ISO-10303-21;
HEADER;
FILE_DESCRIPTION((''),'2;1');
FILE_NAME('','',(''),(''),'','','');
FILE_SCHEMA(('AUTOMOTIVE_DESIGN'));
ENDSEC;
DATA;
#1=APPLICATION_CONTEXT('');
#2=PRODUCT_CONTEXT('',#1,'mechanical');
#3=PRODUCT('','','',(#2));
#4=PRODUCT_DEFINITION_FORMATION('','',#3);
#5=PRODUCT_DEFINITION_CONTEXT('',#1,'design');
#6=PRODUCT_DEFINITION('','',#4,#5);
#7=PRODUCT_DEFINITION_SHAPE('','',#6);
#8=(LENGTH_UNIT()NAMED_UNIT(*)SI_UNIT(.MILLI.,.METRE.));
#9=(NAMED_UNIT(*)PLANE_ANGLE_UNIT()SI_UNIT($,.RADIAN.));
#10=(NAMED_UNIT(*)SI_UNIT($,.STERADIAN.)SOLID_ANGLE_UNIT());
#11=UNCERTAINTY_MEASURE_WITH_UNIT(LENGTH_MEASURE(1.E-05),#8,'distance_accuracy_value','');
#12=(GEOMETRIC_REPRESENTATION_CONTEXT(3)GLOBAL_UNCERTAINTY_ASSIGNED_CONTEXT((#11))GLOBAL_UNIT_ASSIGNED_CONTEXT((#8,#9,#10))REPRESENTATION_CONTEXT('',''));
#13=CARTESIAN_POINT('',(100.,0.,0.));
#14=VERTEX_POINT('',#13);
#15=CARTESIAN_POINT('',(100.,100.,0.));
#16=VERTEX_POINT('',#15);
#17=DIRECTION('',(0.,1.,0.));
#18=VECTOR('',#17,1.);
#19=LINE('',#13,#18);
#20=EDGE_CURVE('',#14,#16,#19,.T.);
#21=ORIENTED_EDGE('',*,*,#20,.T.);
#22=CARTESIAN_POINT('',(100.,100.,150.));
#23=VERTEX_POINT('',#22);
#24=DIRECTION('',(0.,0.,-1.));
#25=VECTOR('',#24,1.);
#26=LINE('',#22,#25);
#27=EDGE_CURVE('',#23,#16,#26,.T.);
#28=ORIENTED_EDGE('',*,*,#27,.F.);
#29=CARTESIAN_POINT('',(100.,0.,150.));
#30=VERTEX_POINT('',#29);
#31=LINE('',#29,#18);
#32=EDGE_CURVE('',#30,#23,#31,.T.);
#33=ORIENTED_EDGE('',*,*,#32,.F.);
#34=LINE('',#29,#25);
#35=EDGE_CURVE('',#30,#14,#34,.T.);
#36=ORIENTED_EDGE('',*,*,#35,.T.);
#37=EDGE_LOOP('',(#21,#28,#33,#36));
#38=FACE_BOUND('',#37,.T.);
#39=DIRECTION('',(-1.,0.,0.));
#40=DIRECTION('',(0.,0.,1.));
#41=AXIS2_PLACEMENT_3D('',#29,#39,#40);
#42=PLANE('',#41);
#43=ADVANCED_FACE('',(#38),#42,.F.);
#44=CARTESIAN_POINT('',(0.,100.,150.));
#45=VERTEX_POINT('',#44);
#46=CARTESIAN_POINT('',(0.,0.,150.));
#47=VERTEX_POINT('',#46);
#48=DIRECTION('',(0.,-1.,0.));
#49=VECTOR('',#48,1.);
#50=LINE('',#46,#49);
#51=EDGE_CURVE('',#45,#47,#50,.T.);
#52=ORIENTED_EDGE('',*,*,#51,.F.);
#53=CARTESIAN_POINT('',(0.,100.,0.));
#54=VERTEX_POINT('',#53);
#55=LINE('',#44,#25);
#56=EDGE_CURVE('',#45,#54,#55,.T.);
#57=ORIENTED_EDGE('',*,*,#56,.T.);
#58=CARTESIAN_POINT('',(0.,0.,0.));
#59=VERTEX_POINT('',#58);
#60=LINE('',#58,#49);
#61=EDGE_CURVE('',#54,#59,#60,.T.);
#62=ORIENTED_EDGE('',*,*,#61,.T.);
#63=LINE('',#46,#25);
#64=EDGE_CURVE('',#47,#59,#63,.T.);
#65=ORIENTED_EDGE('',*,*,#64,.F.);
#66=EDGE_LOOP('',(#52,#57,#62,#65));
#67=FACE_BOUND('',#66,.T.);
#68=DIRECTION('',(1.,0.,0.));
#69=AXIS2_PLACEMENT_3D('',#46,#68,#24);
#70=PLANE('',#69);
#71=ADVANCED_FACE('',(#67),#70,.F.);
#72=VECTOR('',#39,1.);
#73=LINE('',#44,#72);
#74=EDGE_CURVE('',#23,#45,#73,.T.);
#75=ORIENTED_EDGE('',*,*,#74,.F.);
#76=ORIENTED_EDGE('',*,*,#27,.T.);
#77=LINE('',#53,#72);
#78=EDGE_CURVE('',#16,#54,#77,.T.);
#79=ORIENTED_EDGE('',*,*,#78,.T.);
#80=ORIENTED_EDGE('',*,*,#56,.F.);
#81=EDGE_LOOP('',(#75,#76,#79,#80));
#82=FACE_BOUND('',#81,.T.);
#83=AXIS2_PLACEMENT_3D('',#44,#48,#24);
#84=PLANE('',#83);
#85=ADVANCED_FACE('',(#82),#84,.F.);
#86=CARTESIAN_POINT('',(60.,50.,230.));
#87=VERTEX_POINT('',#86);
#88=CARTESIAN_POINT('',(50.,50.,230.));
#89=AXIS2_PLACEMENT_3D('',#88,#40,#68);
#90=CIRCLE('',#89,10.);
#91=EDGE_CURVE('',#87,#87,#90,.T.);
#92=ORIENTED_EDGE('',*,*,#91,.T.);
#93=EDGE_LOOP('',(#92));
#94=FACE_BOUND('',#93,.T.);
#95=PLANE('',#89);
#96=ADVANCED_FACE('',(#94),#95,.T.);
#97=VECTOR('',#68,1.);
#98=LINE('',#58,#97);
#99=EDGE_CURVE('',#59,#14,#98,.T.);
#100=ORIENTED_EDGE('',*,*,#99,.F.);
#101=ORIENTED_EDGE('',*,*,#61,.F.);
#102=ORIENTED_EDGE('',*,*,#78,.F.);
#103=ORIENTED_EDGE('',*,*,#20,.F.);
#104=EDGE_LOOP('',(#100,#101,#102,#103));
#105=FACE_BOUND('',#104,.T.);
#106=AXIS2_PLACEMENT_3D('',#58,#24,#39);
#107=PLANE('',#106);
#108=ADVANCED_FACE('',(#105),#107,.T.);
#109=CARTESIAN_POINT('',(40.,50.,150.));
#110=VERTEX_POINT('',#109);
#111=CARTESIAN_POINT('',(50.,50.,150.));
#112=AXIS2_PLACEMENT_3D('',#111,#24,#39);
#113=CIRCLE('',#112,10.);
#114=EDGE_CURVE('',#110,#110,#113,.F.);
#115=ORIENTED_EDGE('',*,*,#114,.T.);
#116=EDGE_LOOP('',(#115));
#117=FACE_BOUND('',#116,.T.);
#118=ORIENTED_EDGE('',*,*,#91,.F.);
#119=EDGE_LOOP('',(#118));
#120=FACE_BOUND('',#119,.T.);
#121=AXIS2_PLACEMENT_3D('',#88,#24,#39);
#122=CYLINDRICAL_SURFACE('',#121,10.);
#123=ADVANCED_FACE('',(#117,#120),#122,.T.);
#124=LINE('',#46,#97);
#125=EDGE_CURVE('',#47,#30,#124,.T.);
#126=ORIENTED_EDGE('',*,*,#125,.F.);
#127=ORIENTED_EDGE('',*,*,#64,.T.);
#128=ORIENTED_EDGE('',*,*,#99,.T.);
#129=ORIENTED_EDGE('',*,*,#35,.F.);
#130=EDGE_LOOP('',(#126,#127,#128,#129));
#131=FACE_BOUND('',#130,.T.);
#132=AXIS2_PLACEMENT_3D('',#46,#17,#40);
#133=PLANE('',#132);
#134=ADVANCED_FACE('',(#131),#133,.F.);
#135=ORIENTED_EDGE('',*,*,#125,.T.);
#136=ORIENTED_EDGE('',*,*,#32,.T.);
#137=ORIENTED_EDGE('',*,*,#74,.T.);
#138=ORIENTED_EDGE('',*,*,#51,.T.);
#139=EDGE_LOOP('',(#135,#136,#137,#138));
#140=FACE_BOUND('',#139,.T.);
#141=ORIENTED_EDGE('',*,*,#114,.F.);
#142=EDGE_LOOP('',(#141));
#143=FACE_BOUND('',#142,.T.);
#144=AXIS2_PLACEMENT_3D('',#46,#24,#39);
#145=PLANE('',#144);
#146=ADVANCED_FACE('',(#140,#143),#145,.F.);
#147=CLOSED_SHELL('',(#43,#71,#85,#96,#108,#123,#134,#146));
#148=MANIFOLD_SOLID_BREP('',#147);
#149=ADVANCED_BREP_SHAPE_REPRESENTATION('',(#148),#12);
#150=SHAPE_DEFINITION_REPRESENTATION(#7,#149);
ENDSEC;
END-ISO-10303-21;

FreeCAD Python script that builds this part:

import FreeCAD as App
import Part
import Sketcher
from FreeCAD import Vector
Q = App.Units.Quantity


def add_polygon(sketch, points):
    """Adds a closed chain of lines whose ends are joined by coincident constraints."""
    first, n = sketch.GeometryCount, len(points)
    for a, b in zip(points, points[1:] + points[:1]):
        sketch.addGeometry(Part.LineSegment(App.Vector(*a, 0), App.Vector(*b, 0)), False)
    for i in range(n):
        sketch.addConstraint(Sketcher.Constraint("Coincident", first + i, 2, first + (i + 1) % n, 1))

doc = App.newDocument("Part")
body = doc.addObject("PartDesign::Body", "Body")

# Sketch on XY plane
sketch1 = body.newObject("Sketcher::SketchObject", "Sketch")
sketch1.AttachmentSupport = (doc.getObject("XY_Plane"), [""])
sketch1.MapMode = "FlatFace"
add_polygon(sketch1, [(0, 100), (0, 0), (100, 0), (100, 100)])  # lines 0-3
sketch1.addConstraint(Sketcher.Constraint("Vertical", 0))
sketch1.addConstraint(Sketcher.Constraint("Horizontal", 1))
sketch1.addConstraint(Sketcher.Constraint("Vertical", 2))
sketch1.addConstraint(Sketcher.Constraint("Horizontal", 3))
sketch1.addConstraint(Sketcher.Constraint("Coincident", 0, 2, -1, 1))
sketch1.addConstraint(Sketcher.Constraint("Equal", 3, 0))
sketch1.addConstraint(Sketcher.Constraint("DistanceX", 1, 1, 1, 2, Q("100 mm")))
pad1 = body.newObject("PartDesign::Pad", "Pad")
pad1.Profile = sketch1
pad1.Length = 150

# Sketch on XY plane
sketch2 = body.newObject("Sketcher::SketchObject", "Sketch001")
sketch2.AttachmentSupport = (doc.getObject("XY_Plane"), [""])
sketch2.MapMode = "FlatFace"
sketch2.AttachmentOffset = App.Placement(Vector(0, 0, 150), App.Rotation())
sketch2.addGeometry(Part.Circle(Vector(50, 50, 0), Vector(0, 0, 1), 10), False)
sketch2.addConstraint(Sketcher.Constraint("Diameter", 0, Q("20 mm")))
sketch2.addConstraint(Sketcher.Constraint("DistanceX", -1, 1, 0, 3, Q("50 mm")))
sketch2.addConstraint(Sketcher.Constraint("DistanceY", -1, 1, 0, 3, Q("50 mm")))
pad2 = body.newObject("PartDesign::Pad", "Pad001")
pad2.Profile = sketch2
pad2.Length = 80

doc.recompute()
